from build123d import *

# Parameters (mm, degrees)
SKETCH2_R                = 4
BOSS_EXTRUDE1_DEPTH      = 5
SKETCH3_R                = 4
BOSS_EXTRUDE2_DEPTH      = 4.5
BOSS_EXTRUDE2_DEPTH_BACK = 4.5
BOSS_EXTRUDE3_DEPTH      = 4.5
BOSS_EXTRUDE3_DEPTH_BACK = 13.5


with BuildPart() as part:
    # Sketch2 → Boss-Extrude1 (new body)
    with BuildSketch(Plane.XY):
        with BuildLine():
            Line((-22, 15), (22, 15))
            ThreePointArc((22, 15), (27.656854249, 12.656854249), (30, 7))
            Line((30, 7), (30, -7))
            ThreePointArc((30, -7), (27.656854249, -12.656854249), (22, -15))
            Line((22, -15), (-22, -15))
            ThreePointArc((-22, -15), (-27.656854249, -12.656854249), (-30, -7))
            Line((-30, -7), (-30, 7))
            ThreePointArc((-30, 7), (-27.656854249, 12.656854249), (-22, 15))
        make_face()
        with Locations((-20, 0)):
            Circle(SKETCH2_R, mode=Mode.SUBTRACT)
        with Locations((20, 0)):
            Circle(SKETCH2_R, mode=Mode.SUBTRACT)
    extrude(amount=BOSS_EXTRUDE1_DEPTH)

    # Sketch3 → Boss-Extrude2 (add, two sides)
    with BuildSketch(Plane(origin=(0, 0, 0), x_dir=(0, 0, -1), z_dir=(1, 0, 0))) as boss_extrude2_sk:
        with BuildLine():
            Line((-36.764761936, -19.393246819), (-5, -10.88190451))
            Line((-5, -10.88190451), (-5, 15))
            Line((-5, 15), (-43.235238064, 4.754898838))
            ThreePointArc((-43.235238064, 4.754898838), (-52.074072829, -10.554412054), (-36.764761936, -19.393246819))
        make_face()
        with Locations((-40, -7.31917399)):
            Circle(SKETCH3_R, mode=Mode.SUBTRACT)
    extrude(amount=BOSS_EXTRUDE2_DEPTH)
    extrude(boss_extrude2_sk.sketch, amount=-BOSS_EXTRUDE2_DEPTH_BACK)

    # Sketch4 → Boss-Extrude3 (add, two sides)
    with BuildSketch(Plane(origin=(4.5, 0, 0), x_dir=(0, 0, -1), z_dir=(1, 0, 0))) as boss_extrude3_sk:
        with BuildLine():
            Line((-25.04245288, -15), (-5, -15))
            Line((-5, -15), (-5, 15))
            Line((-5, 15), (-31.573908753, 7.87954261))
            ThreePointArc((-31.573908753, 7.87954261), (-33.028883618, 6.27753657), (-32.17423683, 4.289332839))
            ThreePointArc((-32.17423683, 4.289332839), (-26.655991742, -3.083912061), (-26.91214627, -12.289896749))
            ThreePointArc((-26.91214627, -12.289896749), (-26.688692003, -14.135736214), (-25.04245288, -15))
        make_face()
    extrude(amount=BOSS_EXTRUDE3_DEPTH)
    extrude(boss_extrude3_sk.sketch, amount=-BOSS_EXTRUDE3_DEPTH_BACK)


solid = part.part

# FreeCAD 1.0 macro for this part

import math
import FreeCAD as App
import Part
import Sketcher
from FreeCAD import Vector
Q = App.Units.Quantity

doc = App.newDocument("Part")
body = doc.addObject("PartDesign::Body", "Body")

# Sketch on XY plane
sketch1 = body.newObject("Sketcher::SketchObject", "Sketch")
sketch1.AttachmentSupport = (doc.getObject("XY_Plane"), [""])
sketch1.MapMode = "FlatFace"
sketch1.addGeometry(Part.LineSegment(Vector(22, 15, 0), Vector(-22, 15, 0)), False)
sketch1.addGeometry(Part.ArcOfCircle(Part.Circle(Vector(-22, 7, 0), Vector(0, 0, 1), 8), math.radians(90), math.radians(180)), False)
sketch1.addGeometry(Part.LineSegment(Vector(-30, 7, 0), Vector(-30, -7, 0)), False)
sketch1.addGeometry(Part.ArcOfCircle(Part.Circle(Vector(-22, -7, 0), Vector(0, 0, 1), 8), math.radians(-180), math.radians(-90)), False)
sketch1.addGeometry(Part.LineSegment(Vector(-22, -15, 0), Vector(22, -15, 0)), False)
sketch1.addGeometry(Part.ArcOfCircle(Part.Circle(Vector(22, -7, 0), Vector(0, 0, 1), 8), math.radians(-90), math.radians(0)), False)
sketch1.addGeometry(Part.LineSegment(Vector(30, -7, 0), Vector(30, 7, 0)), False)
sketch1.addGeometry(Part.ArcOfCircle(Part.Circle(Vector(22, 7, 0), Vector(0, 0, 1), 8), math.radians(0), math.radians(90)), False)
sketch1.addGeometry(Part.Circle(Vector(20, 0, 0), Vector(0, 0, 1), 4), False)
sketch1.addGeometry(Part.Circle(Vector(-20, 0, 0), Vector(0, 0, 1), 4), False)
sketch1.addConstraint(Sketcher.Constraint("Tangent", 0, 2, 1, 1))
sketch1.addConstraint(Sketcher.Constraint("Tangent", 1, 2, 2, 1))
sketch1.addConstraint(Sketcher.Constraint("Tangent", 2, 2, 3, 1))
sketch1.addConstraint(Sketcher.Constraint("Tangent", 3, 2, 4, 1))
sketch1.addConstraint(Sketcher.Constraint("Tangent", 4, 2, 5, 1))
sketch1.addConstraint(Sketcher.Constraint("Tangent", 5, 2, 6, 1))
sketch1.addConstraint(Sketcher.Constraint("Tangent", 6, 2, 7, 1))
sketch1.addConstraint(Sketcher.Constraint("Tangent", 7, 2, 0, 1))
sketch1.addConstraint(Sketcher.Constraint("Horizontal", 0))
sketch1.addConstraint(Sketcher.Constraint("Vertical", 2))
sketch1.addConstraint(Sketcher.Constraint("Horizontal", 4))
sketch1.addConstraint(Sketcher.Constraint("Vertical", 6))
sketch1.addConstraint(Sketcher.Constraint("Equal", 1, 3))
sketch1.addConstraint(Sketcher.Constraint("Equal", 3, 5))
sketch1.addConstraint(Sketcher.Constraint("Equal", 5, 7))
sketch1.addConstraint(Sketcher.Constraint("Equal", 8, 9))
sketch1.addConstraint(Sketcher.Constraint("Symmetric", 1, 3, 5, 3, -1, 1))
sketch1.addConstraint(Sketcher.Constraint("Symmetric", 8, 3, 9, 3, -1, 1))
sketch1.addConstraint(Sketcher.Constraint("PointOnObject", 8, 3, -1))
sketch1.addConstraint(Sketcher.Constraint("Diameter", 8, 8.0))
sketch1.addConstraint(Sketcher.Constraint("Radius", 1, 8.0))
sketch1.addConstraint(Sketcher.Constraint("DistanceX", 0, 2, 0, 1, 44.0))
sketch1.addConstraint(Sketcher.Constraint("DistanceY", 2, 2, 2, 1, 14.0))
sketch1.addConstraint(Sketcher.Constraint("DistanceX", -1, 1, 8, 3, 20.0))
pad1 = body.newObject("PartDesign::Pad", "Pad")
pad1.Profile = sketch1
pad1.Length = 5

# Sketch on YZ plane
sketch2 = body.newObject("Sketcher::SketchObject", "Sketch001")
sketch2.AttachmentSupport = (doc.getObject("YZ_Plane"), [""])
sketch2.MapMode = "FlatFace"
sketch2.addGeometry(Part.LineSegment(Vector(-19.4, 36.8, 0), Vector(-10.9, 5, 0)), False)
sketch2.addGeometry(Part.LineSegment(Vector(-10.9, 5, 0), Vector(15, 5, 0)), False)
sketch2.addGeometry(Part.LineSegment(Vector(15, 5, 0), Vector(4.8, 43.2, 0)), False)
sketch2.addGeometry(Part.ArcOfCircle(Part.Circle(Vector(-7.3, 40, 0), Vector(0, 0, 1), 12.5), math.radians(15), math.radians(195)), False)
sketch2.addGeometry(Part.Circle(Vector(-7.3, 40, 0), Vector(0, 0, 1), 4), False)
sketch2.addConstraint(Sketcher.Constraint("Coincident", 0, 2, 1, 1))
sketch2.addConstraint(Sketcher.Constraint("Coincident", 1, 2, 2, 1))
sketch2.addConstraint(Sketcher.Constraint("Tangent", 2, 2, 3, 1))
sketch2.addConstraint(Sketcher.Constraint("Tangent", 3, 2, 0, 1))
sketch2.addConstraint(Sketcher.Constraint("Horizontal", 1))
sketch2.addConstraint(Sketcher.Constraint("Coincident", 4, 3, 3, 3))
sketch2.addConstraint(Sketcher.Constraint("Parallel", 0, 2))
sketch2.addConstraint(Sketcher.Constraint("Diameter", 4, 8.0))
sketch2.addConstraint(Sketcher.Constraint("Radius", 3, 12.5))
sketch2.addConstraint(Sketcher.Constraint("Angle", 0, Q("-75 deg")))
sketch2.addConstraint(Sketcher.Constraint("DistanceY", -1, 1, 3, 3, 40.0))
sketch2.addConstraint(Sketcher.Constraint("DistanceY", -1, 1, 0, 2, 5.0))
sketch2.addConstraint(Sketcher.Constraint("DistanceX", -1, 1, 1, 2, 15.0))
pad2 = body.newObject("PartDesign::Pad", "Pad001")
pad2.Profile = sketch2
pad2.Type = "TwoLengths"
pad2.Length = 4.5
pad2.Length2 = 4.5

# Sketch on YZ plane
sketch3 = body.newObject("Sketcher::SketchObject", "Sketch002")
sketch3.AttachmentSupport = (doc.getObject("YZ_Plane"), [""])
sketch3.MapMode = "FlatFace"
sketch3.AttachmentOffset = App.Placement(Vector(0, 0, 4.5), App.Rotation())
sketch3.addGeometry(Part.LineSegment(Vector(-15, 25, 0), Vector(-15, 5, 0)), False)
sketch3.addGeometry(Part.LineSegment(Vector(-15, 5, 0), Vector(15, 5, 0)), False)
sketch3.addGeometry(Part.LineSegment(Vector(15, 5, 0), Vector(7.9, 31.6, 0)), False)
sketch3.addGeometry(Part.ArcOfCircle(Part.Circle(Vector(5.9, 31.1, 0), Vector(0, 0, 1), 2), math.radians(15), math.radians(146)), False)
sketch3.addGeometry(Part.ArcOfCircle(Part.Circle(Vector(-7.3, 40, 0), Vector(0, 0, 1), 14), math.radians(-111), math.radians(-34)), False)
sketch3.addGeometry(Part.ArcOfCircle(Part.Circle(Vector(-13, 25, 0), Vector(0, 0, 1), 2), math.radians(69), math.radians(180)), False)
sketch3.addConstraint(Sketcher.Constraint("Coincident", 0, 2, 1, 1))
sketch3.addConstraint(Sketcher.Constraint("Coincident", 1, 2, 2, 1))
sketch3.addConstraint(Sketcher.Constraint("Tangent", 2, 2, 3, 1))
sketch3.addConstraint(Sketcher.Constraint("Tangent", 3, 2, 4, 2))
sketch3.addConstraint(Sketcher.Constraint("Tangent", 4, 1, 5, 1))
sketch3.addConstraint(Sketcher.Constraint("Tangent", 5, 2, 0, 1))
sketch3.addConstraint(Sketcher.Constraint("Vertical", 0))
sketch3.addConstraint(Sketcher.Constraint("Horizontal", 1))
sketch3.addConstraint(Sketcher.Constraint("Equal", 3, 5))
sketch3.addConstraint(Sketcher.Constraint("Radius", 3, 2.0))
sketch3.addConstraint(Sketcher.Constraint("Radius", 4, 14.0))
sketch3.addConstraint(Sketcher.Constraint("DistanceX", 1, 1, 1, 2, 30.0))
sketch3.addConstraint(Sketcher.Constraint("Angle", 2, Q("105 deg")))
sketch3.addConstraint(Sketcher.Constraint("DistanceY", -1, 1, 4, 3, 40.0))
sketch3.addConstraint(Sketcher.Constraint("DistanceX", 5, 3, -1, 1, 13.0))
sketch3.addConstraint(Sketcher.Constraint("DistanceY", -1, 1, 0, 2, 5.0))
sketch3.addConstraint(Sketcher.Constraint("DistanceY", 0, 2, 0, 1, 20.042453))
pad3 = body.newObject("PartDesign::Pad", "Pad002")
pad3.Profile = sketch3
pad3.Type = "TwoLengths"
pad3.Length = 4.5
pad3.Length2 = 13.5

doc.recompute()
